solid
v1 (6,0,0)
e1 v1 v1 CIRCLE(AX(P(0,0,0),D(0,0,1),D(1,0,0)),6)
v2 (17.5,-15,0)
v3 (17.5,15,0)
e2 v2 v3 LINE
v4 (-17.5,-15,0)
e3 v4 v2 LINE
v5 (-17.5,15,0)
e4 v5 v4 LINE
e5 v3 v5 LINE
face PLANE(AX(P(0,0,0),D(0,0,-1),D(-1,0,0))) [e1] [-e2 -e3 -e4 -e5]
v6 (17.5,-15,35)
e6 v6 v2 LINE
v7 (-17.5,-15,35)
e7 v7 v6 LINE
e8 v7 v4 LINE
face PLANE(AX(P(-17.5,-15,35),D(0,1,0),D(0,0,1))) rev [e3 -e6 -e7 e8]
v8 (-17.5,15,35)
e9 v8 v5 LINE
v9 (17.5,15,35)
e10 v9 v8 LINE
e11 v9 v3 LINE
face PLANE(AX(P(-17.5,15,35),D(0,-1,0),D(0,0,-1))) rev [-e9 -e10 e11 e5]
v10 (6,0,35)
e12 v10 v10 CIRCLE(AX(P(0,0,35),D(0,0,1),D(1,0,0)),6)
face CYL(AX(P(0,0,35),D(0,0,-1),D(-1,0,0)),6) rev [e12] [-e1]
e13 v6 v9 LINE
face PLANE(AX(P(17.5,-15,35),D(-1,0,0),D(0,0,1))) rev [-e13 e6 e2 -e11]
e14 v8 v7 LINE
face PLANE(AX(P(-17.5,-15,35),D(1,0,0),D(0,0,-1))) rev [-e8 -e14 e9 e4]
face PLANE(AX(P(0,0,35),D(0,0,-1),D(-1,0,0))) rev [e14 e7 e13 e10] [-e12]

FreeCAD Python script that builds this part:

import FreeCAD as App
import Part
import Sketcher

doc = App.newDocument("Part")
params = doc.addObject("Spreadsheet::Sheet", "Params")
for row, (alias, value) in enumerate([
    ("sketch1_diameter", "12 mm"),
    ("sketch1_width", "35 mm"),
    ("sketch1_height", "30 mm"),
    ("pad1_length", "35 mm"),
], start=1):
    params.set(f"A{row}", alias)
    params.set(f"B{row}", "=" + value)
    params.setAlias(f"B{row}", alias)

body = doc.addObject("PartDesign::Body", "Body")

sketch1 = doc.addObject("Sketcher::SketchObject", "Sketch")
body.addObject(sketch1)
sketch1.AttachmentSupport = (doc.XY_Plane, [""])
sketch1.MapMode = "FlatFace"
sketch1.addGeometry([
    Part.LineSegment(App.Vector(-18, 15, 0), App.Vector(-18, -15, 0)),
    Part.LineSegment(App.Vector(-18, -15, 0), App.Vector(18, -15, 0)),
    Part.LineSegment(App.Vector(18, -15, 0), App.Vector(18, 15, 0)),
    Part.LineSegment(App.Vector(18, 15, 0), App.Vector(-18, 15, 0)),
    Part.Circle(App.Vector(0, 0, 0), App.Vector(0, 0, 1), 6),
], False)
sketch1.addConstraint([
    Sketcher.Constraint("Coincident", 0, 2, 1, 1),
    Sketcher.Constraint("Coincident", 1, 2, 2, 1),
    Sketcher.Constraint("Coincident", 2, 2, 3, 1),
    Sketcher.Constraint("Coincident", 3, 2, 0, 1),
    Sketcher.Constraint("Vertical", 0),
    Sketcher.Constraint("Horizontal", 1),
    Sketcher.Constraint("Vertical", 2),
    Sketcher.Constraint("Horizontal", 3),
    Sketcher.Constraint("Coincident", 4, 3, -1, 1),
    Sketcher.Constraint("Symmetric", 0, 2, 2, 2, -1, 1),
    Sketcher.Constraint("Diameter", 4, 12.0),
    Sketcher.Constraint("DistanceX", 1, 1, 1, 2, 35.0),
    Sketcher.Constraint("DistanceY", 0, 2, 0, 1, 30.0),
])
sketch1.setExpression("Constraints[10]", "Params.sketch1_diameter")
sketch1.setExpression("Constraints[11]", "Params.sketch1_width")
sketch1.setExpression("Constraints[12]", "Params.sketch1_height")
pad1 = doc.addObject("PartDesign::Pad", "Pad")
body.addObject(pad1)
pad1.Profile = sketch1
pad1.setExpression("Length", "Params.pad1_length")

doc.recompute()
